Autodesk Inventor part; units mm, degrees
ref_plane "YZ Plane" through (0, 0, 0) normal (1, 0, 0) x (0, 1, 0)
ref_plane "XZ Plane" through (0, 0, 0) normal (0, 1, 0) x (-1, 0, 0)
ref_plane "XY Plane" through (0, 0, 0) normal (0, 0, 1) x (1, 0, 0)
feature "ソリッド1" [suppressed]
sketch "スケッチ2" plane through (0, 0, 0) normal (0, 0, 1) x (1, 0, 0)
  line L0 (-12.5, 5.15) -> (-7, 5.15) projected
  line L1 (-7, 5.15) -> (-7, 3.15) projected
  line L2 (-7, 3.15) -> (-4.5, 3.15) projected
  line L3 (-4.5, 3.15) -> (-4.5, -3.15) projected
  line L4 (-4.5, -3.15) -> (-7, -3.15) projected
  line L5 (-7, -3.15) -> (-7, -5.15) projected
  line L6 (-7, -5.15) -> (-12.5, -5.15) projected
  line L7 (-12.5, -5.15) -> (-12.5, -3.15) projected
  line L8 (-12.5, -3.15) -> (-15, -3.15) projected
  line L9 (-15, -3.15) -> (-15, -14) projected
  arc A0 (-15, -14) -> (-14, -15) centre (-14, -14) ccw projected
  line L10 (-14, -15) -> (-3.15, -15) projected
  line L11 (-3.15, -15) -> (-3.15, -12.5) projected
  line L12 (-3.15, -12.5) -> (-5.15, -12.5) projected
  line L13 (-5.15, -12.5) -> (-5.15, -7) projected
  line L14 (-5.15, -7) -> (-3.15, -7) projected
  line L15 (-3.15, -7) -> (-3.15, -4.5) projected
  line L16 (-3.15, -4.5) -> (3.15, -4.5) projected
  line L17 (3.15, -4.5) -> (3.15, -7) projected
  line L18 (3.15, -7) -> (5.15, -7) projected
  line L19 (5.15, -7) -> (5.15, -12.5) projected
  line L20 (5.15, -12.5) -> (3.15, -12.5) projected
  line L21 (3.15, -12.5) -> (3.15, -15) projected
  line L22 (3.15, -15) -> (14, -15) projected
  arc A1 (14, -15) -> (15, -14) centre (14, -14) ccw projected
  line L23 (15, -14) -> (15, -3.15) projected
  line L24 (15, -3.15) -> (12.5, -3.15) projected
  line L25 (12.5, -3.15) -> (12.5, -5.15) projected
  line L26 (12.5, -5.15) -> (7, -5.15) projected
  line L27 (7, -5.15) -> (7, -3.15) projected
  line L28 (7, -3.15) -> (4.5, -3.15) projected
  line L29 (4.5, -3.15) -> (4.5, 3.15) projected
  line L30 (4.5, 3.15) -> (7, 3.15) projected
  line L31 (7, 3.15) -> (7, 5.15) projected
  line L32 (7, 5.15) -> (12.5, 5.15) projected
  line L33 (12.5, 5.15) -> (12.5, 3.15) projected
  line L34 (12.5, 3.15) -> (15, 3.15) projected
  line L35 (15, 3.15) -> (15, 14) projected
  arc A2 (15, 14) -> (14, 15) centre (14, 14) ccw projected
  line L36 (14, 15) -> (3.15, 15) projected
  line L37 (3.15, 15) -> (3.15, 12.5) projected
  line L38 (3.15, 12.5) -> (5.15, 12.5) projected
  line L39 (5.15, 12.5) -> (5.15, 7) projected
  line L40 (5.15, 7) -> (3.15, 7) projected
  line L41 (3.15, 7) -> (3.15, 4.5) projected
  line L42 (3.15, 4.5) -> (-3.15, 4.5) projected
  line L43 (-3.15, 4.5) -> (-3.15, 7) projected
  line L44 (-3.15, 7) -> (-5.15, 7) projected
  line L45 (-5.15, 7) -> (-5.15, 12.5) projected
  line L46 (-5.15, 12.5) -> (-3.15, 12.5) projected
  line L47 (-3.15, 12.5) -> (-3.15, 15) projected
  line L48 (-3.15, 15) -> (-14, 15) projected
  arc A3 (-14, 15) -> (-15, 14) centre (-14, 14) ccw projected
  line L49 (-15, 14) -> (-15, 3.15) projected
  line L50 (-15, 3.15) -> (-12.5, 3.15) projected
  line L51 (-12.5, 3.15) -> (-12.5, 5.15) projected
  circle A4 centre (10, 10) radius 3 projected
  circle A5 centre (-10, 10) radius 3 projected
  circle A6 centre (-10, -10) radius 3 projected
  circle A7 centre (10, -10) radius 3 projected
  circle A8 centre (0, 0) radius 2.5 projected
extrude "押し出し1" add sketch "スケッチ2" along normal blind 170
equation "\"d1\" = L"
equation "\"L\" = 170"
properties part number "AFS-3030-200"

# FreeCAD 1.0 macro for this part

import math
import FreeCAD as App
import Part
import Sketcher

doc = App.newDocument("Part")
body = doc.addObject("PartDesign::Body", "Body")

# Sketch on XY plane
sketch1 = body.newObject("Sketcher::SketchObject", "Sketch")
sketch1.AttachmentSupport = (doc.getObject("XY_Plane"), [""])
sketch1.MapMode = "FlatFace"
sketch1.addGeometry(Part.LineSegment(App.Vector(-12.5, 3.1, 0), App.Vector(-12.5, 5.2, 0)), False)
sketch1.addGeometry(Part.LineSegment(App.Vector(-12.5, 5.2, 0), App.Vector(-7, 5.2, 0)), False)
sketch1.addGeometry(Part.LineSegment(App.Vector(-7, 5.2, 0), App.Vector(-7, 3.1, 0)), False)
sketch1.addGeometry(Part.LineSegment(App.Vector(-7, 3.1, 0), App.Vector(-4.5, 3.1, 0)), False)
sketch1.addGeometry(Part.LineSegment(App.Vector(-4.5, 3.1, 0), App.Vector(-4.5, -3.1, 0)), False)
sketch1.addGeometry(Part.LineSegment(App.Vector(-4.5, -3.1, 0), App.Vector(-7, -3.1, 0)), False)
sketch1.addGeometry(Part.LineSegment(App.Vector(-7, -3.1, 0), App.Vector(-7, -5.2, 0)), False)
sketch1.addGeometry(Part.LineSegment(App.Vector(-7, -5.2, 0), App.Vector(-12.5, -5.2, 0)), False)
sketch1.addGeometry(Part.LineSegment(App.Vector(-12.5, -5.2, 0), App.Vector(-12.5, -3.1, 0)), False)
sketch1.addGeometry(Part.LineSegment(App.Vector(-12.5, -3.1, 0), App.Vector(-15, -3.1, 0)), False)
sketch1.addGeometry(Part.LineSegment(App.Vector(-15, -3.1, 0), App.Vector(-15, -14, 0)), False)
sketch1.addGeometry(Part.ArcOfCircle(Part.Circle(App.Vector(-14, -14, 0), App.Vector(0, 0, 1), 1), math.radians(180), math.radians(270)), False)
sketch1.addGeometry(Part.LineSegment(App.Vector(-14, -15, 0), App.Vector(-3.1, -15, 0)), False)
sketch1.addGeometry(Part.LineSegment(App.Vector(-3.1, -15, 0), App.Vector(-3.1, -12.5, 0)), False)
sketch1.addGeometry(Part.LineSegment(App.Vector(-3.1, -12.5, 0), App.Vector(-5.2, -12.5, 0)), False)
sketch1.addGeometry(Part.LineSegment(App.Vector(-5.2, -12.5, 0), App.Vector(-5.2, -7, 0)), False)
sketch1.addGeometry(Part.LineSegment(App.Vector(-5.2, -7, 0), App.Vector(-3.1, -7, 0)), False)
sketch1.addGeometry(Part.LineSegment(App.Vector(-3.1, -7, 0), App.Vector(-3.1, -4.5, 0)), False)
sketch1.addGeometry(Part.LineSegment(App.Vector(-3.1, -4.5, 0), App.Vector(3.1, -4.5, 0)), False)
sketch1.addGeometry(Part.LineSegment(App.Vector(3.1, -4.5, 0), App.Vector(3.1, -7, 0)), False)
sketch1.addGeometry(Part.LineSegment(App.Vector(3.1, -7, 0), App.Vector(5.2, -7, 0)), False)
sketch1.addGeometry(Part.LineSegment(App.Vector(5.2, -7, 0), App.Vector(5.2, -12.5, 0)), False)
sketch1.addGeometry(Part.LineSegment(App.Vector(5.2, -12.5, 0), App.Vector(3.1, -12.5, 0)), False)
sketch1.addGeometry(Part.LineSegment(App.Vector(3.1, -12.5, 0), App.Vector(3.1, -15, 0)), False)
sketch1.addGeometry(Part.LineSegment(App.Vector(3.1, -15, 0), App.Vector(14, -15, 0)), False)
sketch1.addGeometry(Part.ArcOfCircle(Part.Circle(App.Vector(14, -14, 0), App.Vector(0, 0, 1), 1), math.radians(-90), math.radians(0)), False)
sketch1.addGeometry(Part.LineSegment(App.Vector(15, -14, 0), App.Vector(15, -3.1, 0)), False)
sketch1.addGeometry(Part.LineSegment(App.Vector(15, -3.1, 0), App.Vector(12.5, -3.1, 0)), False)
sketch1.addGeometry(Part.LineSegment(App.Vector(12.5, -3.1, 0), App.Vector(12.5, -5.2, 0)), False)
sketch1.addGeometry(Part.LineSegment(App.Vector(12.5, -5.2, 0), App.Vector(7, -5.2, 0)), False)
sketch1.addGeometry(Part.LineSegment(App.Vector(7, -5.2, 0), App.Vector(7, -3.1, 0)), False)
sketch1.addGeometry(Part.LineSegment(App.Vector(7, -3.1, 0), App.Vector(4.5, -3.1, 0)), False)
sketch1.addGeometry(Part.LineSegment(App.Vector(4.5, -3.1, 0), App.Vector(4.5, 3.1, 0)), False)
sketch1.addGeometry(Part.LineSegment(App.Vector(4.5, 3.1, 0), App.Vector(7, 3.1, 0)), False)
sketch1.addGeometry(Part.LineSegment(App.Vector(7, 3.1, 0), App.Vector(7, 5.2, 0)), False)
sketch1.addGeometry(Part.LineSegment(App.Vector(7, 5.2, 0), App.Vector(12.5, 5.2, 0)), False)
sketch1.addGeometry(Part.LineSegment(App.Vector(12.5, 5.2, 0), App.Vector(12.5, 3.1, 0)), False)
sketch1.addGeometry(Part.LineSegment(App.Vector(12.5, 3.1, 0), App.Vector(15, 3.1, 0)), False)
sketch1.addGeometry(Part.LineSegment(App.Vector(15, 3.1, 0), App.Vector(15, 14, 0)), False)
sketch1.addGeometry(Part.ArcOfCircle(Part.Circle(App.Vector(14, 14, 0), App.Vector(0, 0, 1), 1), math.radians(0), math.radians(90)), False)
sketch1.addGeometry(Part.LineSegment(App.Vector(14, 15, 0), App.Vector(3.1, 15, 0)), False)
sketch1.addGeometry(Part.LineSegment(App.Vector(3.1, 15, 0), App.Vector(3.1, 12.5, 0)), False)
sketch1.addGeometry(Part.LineSegment(App.Vector(3.1, 12.5, 0), App.Vector(5.2, 12.5, 0)), False)
sketch1.addGeometry(Part.LineSegment(App.Vector(5.2, 12.5, 0), App.Vector(5.2, 7, 0)), False)
sketch1.addGeometry(Part.LineSegment(App.Vector(5.2, 7, 0), App.Vector(3.1, 7, 0)), False)
sketch1.addGeometry(Part.LineSegment(App.Vector(3.1, 7, 0), App.Vector(3.1, 4.5, 0)), False)
sketch1.addGeometry(Part.LineSegment(App.Vector(3.1, 4.5, 0), App.Vector(-3.1, 4.5, 0)), False)
sketch1.addGeometry(Part.LineSegment(App.Vector(-3.1, 4.5, 0), App.Vector(-3.1, 7, 0)), False)
sketch1.addGeometry(Part.LineSegment(App.Vector(-3.1, 7, 0), App.Vector(-5.2, 7, 0)), False)
sketch1.addGeometry(Part.LineSegment(App.Vector(-5.2, 7, 0), App.Vector(-5.2, 12.5, 0)), False)
sketch1.addGeometry(Part.LineSegment(App.Vector(-5.2, 12.5, 0), App.Vector(-3.1, 12.5, 0)), False)
sketch1.addGeometry(Part.LineSegment(App.Vector(-3.1, 12.5, 0), App.Vector(-3.1, 15, 0)), False)
sketch1.addGeometry(Part.LineSegment(App.Vector(-3.1, 15, 0), App.Vector(-14, 15, 0)), False)
sketch1.addGeometry(Part.ArcOfCircle(Part.Circle(App.Vector(-14, 14, 0), App.Vector(0, 0, 1), 1), math.radians(90), math.radians(180)), False)
sketch1.addGeometry(Part.LineSegment(App.Vector(-15, 14, 0), App.Vector(-15, 3.1, 0)), False)
sketch1.addGeometry(Part.LineSegment(App.Vector(-15, 3.1, 0), App.Vector(-12.5, 3.1, 0)), False)
sketch1.addGeometry(Part.Circle(App.Vector(-10, -10, 0), App.Vector(0, 0, 1), 3), False)
sketch1.addGeometry(Part.Circle(App.Vector(10, -10, 0), App.Vector(0, 0, 1), 3), False)
sketch1.addGeometry(Part.Circle(App.Vector(-10, 10, 0), App.Vector(0, 0, 1), 3), False)
sketch1.addGeometry(Part.Circle(App.Vector(0, 0, 0), App.Vector(0, 0, 1), 2.5), False)
sketch1.addGeometry(Part.Circle(App.Vector(10, 10, 0), App.Vector(0, 0, 1), 3), False)
sketch1.addConstraint(Sketcher.Constraint("Coincident", 0, 2, 1, 1))
sketch1.addConstraint(Sketcher.Constraint("Coincident", 1, 2, 2, 1))
sketch1.addConstraint(Sketcher.Constraint("Coincident", 2, 2, 3, 1))
sketch1.addConstraint(Sketcher.Constraint("Coincident", 3, 2, 4, 1))
sketch1.addConstraint(Sketcher.Constraint("Coincident", 4, 2, 5, 1))
sketch1.addConstraint(Sketcher.Constraint("Coincident", 5, 2, 6, 1))
sketch1.addConstraint(Sketcher.Constraint("Coincident", 6, 2, 7, 1))
sketch1.addConstraint(Sketcher.Constraint("Coincident", 7, 2, 8, 1))
sketch1.addConstraint(Sketcher.Constraint("Coincident", 8, 2, 9, 1))
sketch1.addConstraint(Sketcher.Constraint("Coincident", 9, 2, 10, 1))
sketch1.addConstraint(Sketcher.Constraint("Tangent", 10, 2, 11, 1))
sketch1.addConstraint(Sketcher.Constraint("Tangent", 11, 2, 12, 1))
sketch1.addConstraint(Sketcher.Constraint("Coincident", 12, 2, 13, 1))
sketch1.addConstraint(Sketcher.Constraint("Coincident", 13, 2, 14, 1))
sketch1.addConstraint(Sketcher.Constraint("Coincident", 14, 2, 15, 1))
sketch1.addConstraint(Sketcher.Constraint("Coincident", 15, 2, 16, 1))
sketch1.addConstraint(Sketcher.Constraint("Coincident", 16, 2, 17, 1))
sketch1.addConstraint(Sketcher.Constraint("Coincident", 17, 2, 18, 1))
sketch1.addConstraint(Sketcher.Constraint("Coincident", 18, 2, 19, 1))
sketch1.addConstraint(Sketcher.Constraint("Coincident", 19, 2, 20, 1))
sketch1.addConstraint(Sketcher.Constraint("Coincident", 20, 2, 21, 1))
sketch1.addConstraint(Sketcher.Constraint("Coincident", 21, 2, 22, 1))
sketch1.addConstraint(Sketcher.Constraint("Coincident", 22, 2, 23, 1))
sketch1.addConstraint(Sketcher.Constraint("Coincident", 23, 2, 24, 1))
sketch1.addConstraint(Sketcher.Constraint("Tangent", 24, 2, 25, 1))
sketch1.addConstraint(Sketcher.Constraint("Tangent", 25, 2, 26, 1))
sketch1.addConstraint(Sketcher.Constraint("Coincident", 26, 2, 27, 1))
sketch1.addConstraint(Sketcher.Constraint("Coincident", 27, 2, 28, 1))
sketch1.addConstraint(Sketcher.Constraint("Coincident", 28, 2, 29, 1))
sketch1.addConstraint(Sketcher.Constraint("Coincident", 29, 2, 30, 1))
sketch1.addConstraint(Sketcher.Constraint("Coincident", 30, 2, 31, 1))
sketch1.addConstraint(Sketcher.Constraint("Coincident", 31, 2, 32, 1))
sketch1.addConstraint(Sketcher.Constraint("Coincident", 32, 2, 33, 1))
sketch1.addConstraint(Sketcher.Constraint("Coincident", 33, 2, 34, 1))
sketch1.addConstraint(Sketcher.Constraint("Coincident", 34, 2, 35, 1))
sketch1.addConstraint(Sketcher.Constraint("Coincident", 35, 2, 36, 1))
sketch1.addConstraint(Sketcher.Constraint("Coincident", 36, 2, 37, 1))
sketch1.addConstraint(Sketcher.Constraint("Coincident", 37, 2, 38, 1))
sketch1.addConstraint(Sketcher.Constraint("Tangent", 38, 2, 39, 1))
sketch1.addConstraint(Sketcher.Constraint("Tangent", 39, 2, 40, 1))
sketch1.addConstraint(Sketcher.Constraint("Coincident", 40, 2, 41, 1))
sketch1.addConstraint(Sketcher.Constraint("Coincident", 41, 2, 42, 1))
sketch1.addConstraint(Sketcher.Constraint("Coincident", 42, 2, 43, 1))
sketch1.addConstraint(Sketcher.Constraint("Coincident", 43, 2, 44, 1))
sketch1.addConstraint(Sketcher.Constraint("Coincident", 44, 2, 45, 1))
sketch1.addConstraint(Sketcher.Constraint("Coincident", 45, 2, 46, 1))
sketch1.addConstraint(Sketcher.Constraint("Coincident", 46, 2, 47, 1))
sketch1.addConstraint(Sketcher.Constraint("Coincident", 47, 2, 48, 1))
sketch1.addConstraint(Sketcher.Constraint("Coincident", 48, 2, 49, 1))
sketch1.addConstraint(Sketcher.Constraint("Coincident", 49, 2, 50, 1))
sketch1.addConstraint(Sketcher.Constraint("Coincident", 50, 2, 51, 1))
sketch1.addConstraint(Sketcher.Constraint("Coincident", 51, 2, 52, 1))
sketch1.addConstraint(Sketcher.Constraint("Tangent", 52, 2, 53, 1))
sketch1.addConstraint(Sketcher.Constraint("Tangent", 53, 2, 54, 1))
sketch1.addConstraint(Sketcher.Constraint("Coincident", 54, 2, 55, 1))
sketch1.addConstraint(Sketcher.Constraint("Coincident", 55, 2, 0, 1))
sketch1.addConstraint(Sketcher.Constraint("Vertical", 0))
sketch1.addConstraint(Sketcher.Constraint("Horizontal", 1))
sketch1.addConstraint(Sketcher.Constraint("Vertical", 2))
sketch1.addConstraint(Sketcher.Constraint("Horizontal", 3))
sketch1.addConstraint(Sketcher.Constraint("Vertical", 4))
sketch1.addConstraint(Sketcher.Constraint("Horizontal", 5))
sketch1.addConstraint(Sketcher.Constraint("Vertical", 6))
sketch1.addConstraint(Sketcher.Constraint("Horizontal", 7))
sketch1.addConstraint(Sketcher.Constraint("Vertical", 8))
sketch1.addConstraint(Sketcher.Constraint("Horizontal", 9))
sketch1.addConstraint(Sketcher.Constraint("Vertical", 10))
sketch1.addConstraint(Sketcher.Constraint("Horizontal", 12))
sketch1.addConstraint(Sketcher.Constraint("Vertical", 13))
sketch1.addConstraint(Sketcher.Constraint("Horizontal", 14))
sketch1.addConstraint(Sketcher.Constraint("Vertical", 15))
sketch1.addConstraint(Sketcher.Constraint("Horizontal", 16))
sketch1.addConstraint(Sketcher.Constraint("Vertical", 17))
sketch1.addConstraint(Sketcher.Constraint("Horizontal", 18))
sketch1.addConstraint(Sketcher.Constraint("Vertical", 19))
sketch1.addConstraint(Sketcher.Constraint("Horizontal", 20))
sketch1.addConstraint(Sketcher.Constraint("Vertical", 21))
sketch1.addConstraint(Sketcher.Constraint("Horizontal", 22))
sketch1.addConstraint(Sketcher.Constraint("Vertical", 23))
sketch1.addConstraint(Sketcher.Constraint("Horizontal", 24))
sketch1.addConstraint(Sketcher.Constraint("Vertical", 26))
sketch1.addConstraint(Sketcher.Constraint("Horizontal", 27))
sketch1.addConstraint(Sketcher.Constraint("Vertical", 28))
sketch1.addConstraint(Sketcher.Constraint("Horizontal", 29))
sketch1.addConstraint(Sketcher.Constraint("Vertical", 30))
sketch1.addConstraint(Sketcher.Constraint("Horizontal", 31))
sketch1.addConstraint(Sketcher.Constraint("Vertical", 32))
sketch1.addConstraint(Sketcher.Constraint("Horizontal", 33))
sketch1.addConstraint(Sketcher.Constraint("Vertical", 34))
sketch1.addConstraint(Sketcher.Constraint("Horizontal", 35))
sketch1.addConstraint(Sketcher.Constraint("Vertical", 36))
sketch1.addConstraint(Sketcher.Constraint("Horizontal", 37))
sketch1.addConstraint(Sketcher.Constraint("Vertical", 38))
sketch1.addConstraint(Sketcher.Constraint("Horizontal", 40))
sketch1.addConstraint(Sketcher.Constraint("Vertical", 41))
sketch1.addConstraint(Sketcher.Constraint("Horizontal", 42))
sketch1.addConstraint(Sketcher.Constraint("Vertical", 43))
sketch1.addConstraint(Sketcher.Constraint("Horizontal", 44))
sketch1.addConstraint(Sketcher.Constraint("Vertical", 45))
sketch1.addConstraint(Sketcher.Constraint("Horizontal", 46))
sketch1.addConstraint(Sketcher.Constraint("Vertical", 47))
sketch1.addConstraint(Sketcher.Constraint("Horizontal", 48))
sketch1.addConstraint(Sketcher.Constraint("Vertical", 49))
sketch1.addConstraint(Sketcher.Constraint("Horizontal", 50))
sketch1.addConstraint(Sketcher.Constraint("Vertical", 51))
sketch1.addConstraint(Sketcher.Constraint("Horizontal", 52))
sketch1.addConstraint(Sketcher.Constraint("Vertical", 54))
sketch1.addConstraint(Sketcher.Constraint("Horizontal", 55))
sketch1.addConstraint(Sketcher.Constraint("Coincident", 59, 3, -1, 1))
sketch1.addConstraint(Sketcher.Constraint("Equal", 11, 25))
sketch1.addConstraint(Sketcher.Constraint("Equal", 25, 39))
sketch1.addConstraint(Sketcher.Constraint("Equal", 39, 53))
sketch1.addConstraint(Sketcher.Constraint("Equal", 56, 57))
sketch1.addConstraint(Sketcher.Constraint("Equal", 57, 58))
sketch1.addConstraint(Sketcher.Constraint("Equal", 58, 60))
sketch1.addConstraint(Sketcher.Constraint("Symmetric", 11, 3, 39, 3, -1, 1))
sketch1.addConstraint(Sketcher.Constraint("Symmetric", 25, 3, 53, 3, -1, 1))
sketch1.addConstraint(Sketcher.Constraint("Symmetric", 57, 3, 58, 3, -1, 1))
sketch1.addConstraint(Sketcher.Constraint("Symmetric", 56, 3, 60, 3, -1, 1))
sketch1.addConstraint(Sketcher.Constraint("Symmetric", 0, 2, 28, 2, -1, 1))
sketch1.addConstraint(Sketcher.Constraint("Symmetric", 2, 2, 30, 2, -1, 1))
sketch1.addConstraint(Sketcher.Constraint("Symmetric", 4, 2, 32, 2, -1, 1))
sketch1.addConstraint(Sketcher.Constraint("Symmetric", 6, 2, 34, 2, -1, 1))
sketch1.addConstraint(Sketcher.Constraint("Symmetric", 8, 2, 36, 2, -1, 1))
sketch1.addConstraint(Sketcher.Constraint("Symmetric", 13, 2, 41, 2, -1, 1))
sketch1.addConstraint(Sketcher.Constraint("Symmetric", 15, 2, 43, 2, -1, 1))
sketch1.addConstraint(Sketcher.Constraint("Symmetric", 17, 2, 45, 2, -1, 1))
sketch1.addConstraint(Sketcher.Constraint("Symmetric", 19, 2, 47, 2, -1, 1))
sketch1.addConstraint(Sketcher.Constraint("Symmetric", 21, 2, 49, 2, -1, 1))
sketch1.addConstraint(Sketcher.Constraint("Symmetric", 11, 3, 25, 3, -2))
sketch1.addConstraint(Sketcher.Constraint("Symmetric", 56, 3, 57, 3, -2))
sketch1.addConstraint(Sketcher.Constraint("Symmetric", 16, 2, 19, 2, -2))
sketch1.addConstraint(Sketcher.Constraint("Symmetric", 14, 2, 21, 2, -2))
sketch1.addConstraint(Sketcher.Constraint("Symmetric", 8, 2, 27, 2, -2))
sketch1.addConstraint(Sketcher.Constraint("Symmetric", 6, 2, 29, 2, -2))
sketch1.addConstraint(Sketcher.Constraint("Horizontal", 5, 2, 8, 2))
sketch1.addConstraint(Sketcher.Constraint("Horizontal", 27, 2, 30, 2))
sketch1.addConstraint(Sketcher.Constraint("Horizontal", 37, 2, 54, 2))
sketch1.addConstraint(Sketcher.Constraint("Vertical", 13, 2, 16, 2))
sketch1.addConstraint(Sketcher.Constraint("Vertical", 19, 2, 22, 2))
sketch1.addConstraint(Sketcher.Constraint("Vertical", 47, 2, 50, 2))
sketch1.addConstraint(Sketcher.Constraint("Equal", 5, 9))
sketch1.addConstraint(Sketcher.Constraint("Equal", 50, 0))
sketch1.addConstraint(Sketcher.Constraint("Equal", 46, 4))
sketch1.addConstraint(Sketcher.Constraint("Equal", 52, 10))
sketch1.addConstraint(Sketcher.Constraint("Equal", 55, 13))
sketch1.addConstraint(Sketcher.Constraint("Equal", 35, 15))
sketch1.addConstraint(Sketcher.Constraint("Equal", 13, 17))
sketch1.addConstraint(Sketcher.Constraint("Diameter", 56, 6.0))
sketch1.addConstraint(Sketcher.Constraint("Diameter", 59, 5.0))
sketch1.addConstraint(Sketcher.Constraint("Radius", 11, 1.0))
sketch1.addConstraint(Sketcher.Constraint("DistanceX", 14, 2, 14, 1, 2.0))
sketch1.addConstraint(Sketcher.Constraint("DistanceX", 1, 1, 1, 2, 5.5))
sketch1.addConstraint(Sketcher.Constraint("DistanceX", 3, 1, 3, 2, 2.5))
sketch1.addConstraint(Sketcher.Constraint("DistanceX", 18, 1, 18, 2, 6.3))
sketch1.addConstraint(Sketcher.Constraint("DistanceX", 11, 3, -1, 1, 14.0))
sketch1.addConstraint(Sketcher.Constraint("DistanceX", 56, 3, -1, 1, 10.0))
sketch1.addConstraint(Sketcher.Constraint("DistanceY", 56, 3, -1, 1, 10.0))
pad1 = body.newObject("PartDesign::Pad", "Pad")
pad1.Profile = sketch1
pad1.Length = 170

doc.recompute()
